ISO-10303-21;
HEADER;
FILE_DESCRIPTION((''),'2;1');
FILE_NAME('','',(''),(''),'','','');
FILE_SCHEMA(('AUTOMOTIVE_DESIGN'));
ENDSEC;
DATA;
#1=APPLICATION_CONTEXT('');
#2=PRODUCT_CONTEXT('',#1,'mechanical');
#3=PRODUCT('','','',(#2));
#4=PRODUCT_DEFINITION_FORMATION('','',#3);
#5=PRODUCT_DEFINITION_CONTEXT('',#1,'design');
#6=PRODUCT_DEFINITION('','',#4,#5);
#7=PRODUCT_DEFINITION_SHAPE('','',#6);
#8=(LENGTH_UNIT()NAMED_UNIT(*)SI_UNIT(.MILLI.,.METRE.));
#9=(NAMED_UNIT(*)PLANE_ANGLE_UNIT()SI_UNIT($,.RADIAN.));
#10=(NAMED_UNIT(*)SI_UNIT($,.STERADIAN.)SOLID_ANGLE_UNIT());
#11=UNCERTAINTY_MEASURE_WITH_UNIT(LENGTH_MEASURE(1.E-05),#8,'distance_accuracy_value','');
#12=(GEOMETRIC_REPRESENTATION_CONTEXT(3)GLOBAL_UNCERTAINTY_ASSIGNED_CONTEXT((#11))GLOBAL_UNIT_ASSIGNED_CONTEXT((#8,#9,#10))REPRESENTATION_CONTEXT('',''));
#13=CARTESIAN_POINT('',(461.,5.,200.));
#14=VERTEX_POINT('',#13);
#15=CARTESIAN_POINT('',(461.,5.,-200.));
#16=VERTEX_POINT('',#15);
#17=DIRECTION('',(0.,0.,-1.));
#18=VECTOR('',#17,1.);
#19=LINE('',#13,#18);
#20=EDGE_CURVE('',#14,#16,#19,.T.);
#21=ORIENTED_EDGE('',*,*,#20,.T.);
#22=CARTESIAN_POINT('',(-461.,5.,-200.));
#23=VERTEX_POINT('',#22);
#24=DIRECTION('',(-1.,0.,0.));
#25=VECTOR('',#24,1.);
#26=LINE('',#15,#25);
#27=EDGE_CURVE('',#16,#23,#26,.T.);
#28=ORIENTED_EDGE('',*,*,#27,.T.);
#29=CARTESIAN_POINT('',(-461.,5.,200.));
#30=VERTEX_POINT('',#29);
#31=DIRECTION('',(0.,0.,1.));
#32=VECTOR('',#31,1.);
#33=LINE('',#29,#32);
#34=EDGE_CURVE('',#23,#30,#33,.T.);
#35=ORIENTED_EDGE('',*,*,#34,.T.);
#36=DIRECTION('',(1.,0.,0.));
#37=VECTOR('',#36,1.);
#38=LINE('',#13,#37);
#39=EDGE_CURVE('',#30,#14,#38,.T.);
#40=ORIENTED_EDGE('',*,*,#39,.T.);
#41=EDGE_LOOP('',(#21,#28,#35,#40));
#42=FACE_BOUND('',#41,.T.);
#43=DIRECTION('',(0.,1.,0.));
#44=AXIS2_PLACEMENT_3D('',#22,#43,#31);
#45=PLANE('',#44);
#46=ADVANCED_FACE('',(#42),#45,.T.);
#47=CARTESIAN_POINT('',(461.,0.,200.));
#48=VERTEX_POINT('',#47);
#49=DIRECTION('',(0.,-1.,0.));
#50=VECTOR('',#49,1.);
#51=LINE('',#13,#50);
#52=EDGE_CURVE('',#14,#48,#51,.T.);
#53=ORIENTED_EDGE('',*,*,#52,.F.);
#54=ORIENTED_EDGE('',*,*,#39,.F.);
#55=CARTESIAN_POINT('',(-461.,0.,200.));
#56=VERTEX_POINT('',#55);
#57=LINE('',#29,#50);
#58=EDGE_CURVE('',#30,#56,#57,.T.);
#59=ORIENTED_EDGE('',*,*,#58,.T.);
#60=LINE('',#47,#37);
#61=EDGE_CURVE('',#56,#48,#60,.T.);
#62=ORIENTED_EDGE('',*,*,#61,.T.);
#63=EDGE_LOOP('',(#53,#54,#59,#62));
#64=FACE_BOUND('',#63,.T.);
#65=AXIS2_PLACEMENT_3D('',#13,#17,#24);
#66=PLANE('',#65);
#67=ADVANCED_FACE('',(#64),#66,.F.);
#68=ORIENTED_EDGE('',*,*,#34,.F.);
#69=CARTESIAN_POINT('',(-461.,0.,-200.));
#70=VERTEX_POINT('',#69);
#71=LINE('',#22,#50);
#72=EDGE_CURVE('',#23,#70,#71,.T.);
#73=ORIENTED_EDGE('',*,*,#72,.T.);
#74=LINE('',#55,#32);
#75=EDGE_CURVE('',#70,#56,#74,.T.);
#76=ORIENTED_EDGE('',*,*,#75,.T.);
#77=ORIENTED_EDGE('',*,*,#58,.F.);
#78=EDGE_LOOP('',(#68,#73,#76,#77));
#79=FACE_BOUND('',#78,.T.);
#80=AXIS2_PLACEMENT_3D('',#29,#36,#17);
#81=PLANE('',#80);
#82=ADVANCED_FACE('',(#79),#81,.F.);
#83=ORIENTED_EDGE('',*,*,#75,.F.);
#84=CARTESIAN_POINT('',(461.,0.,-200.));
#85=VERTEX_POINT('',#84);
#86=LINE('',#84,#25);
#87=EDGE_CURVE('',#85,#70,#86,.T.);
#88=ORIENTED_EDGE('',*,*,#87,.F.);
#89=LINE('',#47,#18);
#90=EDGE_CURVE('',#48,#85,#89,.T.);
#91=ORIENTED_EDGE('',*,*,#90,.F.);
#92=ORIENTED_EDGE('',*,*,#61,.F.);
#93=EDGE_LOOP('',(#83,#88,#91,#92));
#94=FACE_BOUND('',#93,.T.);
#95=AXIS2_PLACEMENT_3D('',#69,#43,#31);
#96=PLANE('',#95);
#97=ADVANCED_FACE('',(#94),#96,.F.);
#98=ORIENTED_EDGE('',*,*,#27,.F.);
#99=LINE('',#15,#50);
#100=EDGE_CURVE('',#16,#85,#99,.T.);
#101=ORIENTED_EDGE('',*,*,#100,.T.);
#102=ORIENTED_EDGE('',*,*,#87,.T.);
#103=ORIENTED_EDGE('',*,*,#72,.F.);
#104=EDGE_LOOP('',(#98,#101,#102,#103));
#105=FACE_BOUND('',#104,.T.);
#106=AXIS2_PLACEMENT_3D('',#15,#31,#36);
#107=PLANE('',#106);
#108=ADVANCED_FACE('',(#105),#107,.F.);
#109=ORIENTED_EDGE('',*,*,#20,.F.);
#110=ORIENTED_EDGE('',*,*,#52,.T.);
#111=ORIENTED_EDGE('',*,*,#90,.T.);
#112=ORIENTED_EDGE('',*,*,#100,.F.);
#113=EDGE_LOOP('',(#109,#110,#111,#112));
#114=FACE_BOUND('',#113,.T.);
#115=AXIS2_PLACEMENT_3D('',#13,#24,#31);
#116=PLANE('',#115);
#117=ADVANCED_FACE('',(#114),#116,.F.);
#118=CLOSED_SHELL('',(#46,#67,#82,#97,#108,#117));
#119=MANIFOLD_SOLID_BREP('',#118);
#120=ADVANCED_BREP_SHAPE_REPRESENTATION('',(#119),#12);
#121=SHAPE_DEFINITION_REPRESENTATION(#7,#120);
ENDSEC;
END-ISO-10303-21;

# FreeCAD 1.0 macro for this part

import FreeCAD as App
import Part
import Sketcher
from FreeCAD import Vector
Q = App.Units.Quantity

doc = App.newDocument("Part")
body = doc.addObject("PartDesign::Body", "Body")

sketch1 = body.newObject("Sketcher::SketchObject", "Sketch")
sketch1.AttachmentSupport = (doc.getObject("XZ_Plane"), [""])
sketch1.MapMode = "FlatFace"
sketch1.addGeometry([
    Part.LineSegment(Vector(-461, -200, 0), Vector(-461, 200, 0)),
    Part.LineSegment(Vector(-461, 200, 0), Vector(461, 200, 0)),
    Part.LineSegment(Vector(461, 200, 0), Vector(461, -200, 0)),
    Part.LineSegment(Vector(461, -200, 0), Vector(-461, -200, 0)),
], False)
sketch1.addConstraint([
    Sketcher.Constraint("Coincident", 0, 2, 1, 1),
    Sketcher.Constraint("Coincident", 1, 2, 2, 1),
    Sketcher.Constraint("Coincident", 2, 2, 3, 1),
    Sketcher.Constraint("Coincident", 3, 2, 0, 1),
    Sketcher.Constraint("Vertical", 0),
    Sketcher.Constraint("Horizontal", 1),
    Sketcher.Constraint("Vertical", 2),
    Sketcher.Constraint("Horizontal", 3),
    Sketcher.Constraint("Symmetric", 0, 2, 2, 2, -1, 1),
    Sketcher.Constraint("DistanceX", 1, 1, 1, 2, Q("922 mm")),
    Sketcher.Constraint("DistanceY", 0, 1, 0, 2, Q("400 mm")),
])
pad1 = body.newObject("PartDesign::Pad", "Pad")
pad1.Profile = sketch1
pad1.Length = 5
pad1.Reversed = True

doc.recompute()
